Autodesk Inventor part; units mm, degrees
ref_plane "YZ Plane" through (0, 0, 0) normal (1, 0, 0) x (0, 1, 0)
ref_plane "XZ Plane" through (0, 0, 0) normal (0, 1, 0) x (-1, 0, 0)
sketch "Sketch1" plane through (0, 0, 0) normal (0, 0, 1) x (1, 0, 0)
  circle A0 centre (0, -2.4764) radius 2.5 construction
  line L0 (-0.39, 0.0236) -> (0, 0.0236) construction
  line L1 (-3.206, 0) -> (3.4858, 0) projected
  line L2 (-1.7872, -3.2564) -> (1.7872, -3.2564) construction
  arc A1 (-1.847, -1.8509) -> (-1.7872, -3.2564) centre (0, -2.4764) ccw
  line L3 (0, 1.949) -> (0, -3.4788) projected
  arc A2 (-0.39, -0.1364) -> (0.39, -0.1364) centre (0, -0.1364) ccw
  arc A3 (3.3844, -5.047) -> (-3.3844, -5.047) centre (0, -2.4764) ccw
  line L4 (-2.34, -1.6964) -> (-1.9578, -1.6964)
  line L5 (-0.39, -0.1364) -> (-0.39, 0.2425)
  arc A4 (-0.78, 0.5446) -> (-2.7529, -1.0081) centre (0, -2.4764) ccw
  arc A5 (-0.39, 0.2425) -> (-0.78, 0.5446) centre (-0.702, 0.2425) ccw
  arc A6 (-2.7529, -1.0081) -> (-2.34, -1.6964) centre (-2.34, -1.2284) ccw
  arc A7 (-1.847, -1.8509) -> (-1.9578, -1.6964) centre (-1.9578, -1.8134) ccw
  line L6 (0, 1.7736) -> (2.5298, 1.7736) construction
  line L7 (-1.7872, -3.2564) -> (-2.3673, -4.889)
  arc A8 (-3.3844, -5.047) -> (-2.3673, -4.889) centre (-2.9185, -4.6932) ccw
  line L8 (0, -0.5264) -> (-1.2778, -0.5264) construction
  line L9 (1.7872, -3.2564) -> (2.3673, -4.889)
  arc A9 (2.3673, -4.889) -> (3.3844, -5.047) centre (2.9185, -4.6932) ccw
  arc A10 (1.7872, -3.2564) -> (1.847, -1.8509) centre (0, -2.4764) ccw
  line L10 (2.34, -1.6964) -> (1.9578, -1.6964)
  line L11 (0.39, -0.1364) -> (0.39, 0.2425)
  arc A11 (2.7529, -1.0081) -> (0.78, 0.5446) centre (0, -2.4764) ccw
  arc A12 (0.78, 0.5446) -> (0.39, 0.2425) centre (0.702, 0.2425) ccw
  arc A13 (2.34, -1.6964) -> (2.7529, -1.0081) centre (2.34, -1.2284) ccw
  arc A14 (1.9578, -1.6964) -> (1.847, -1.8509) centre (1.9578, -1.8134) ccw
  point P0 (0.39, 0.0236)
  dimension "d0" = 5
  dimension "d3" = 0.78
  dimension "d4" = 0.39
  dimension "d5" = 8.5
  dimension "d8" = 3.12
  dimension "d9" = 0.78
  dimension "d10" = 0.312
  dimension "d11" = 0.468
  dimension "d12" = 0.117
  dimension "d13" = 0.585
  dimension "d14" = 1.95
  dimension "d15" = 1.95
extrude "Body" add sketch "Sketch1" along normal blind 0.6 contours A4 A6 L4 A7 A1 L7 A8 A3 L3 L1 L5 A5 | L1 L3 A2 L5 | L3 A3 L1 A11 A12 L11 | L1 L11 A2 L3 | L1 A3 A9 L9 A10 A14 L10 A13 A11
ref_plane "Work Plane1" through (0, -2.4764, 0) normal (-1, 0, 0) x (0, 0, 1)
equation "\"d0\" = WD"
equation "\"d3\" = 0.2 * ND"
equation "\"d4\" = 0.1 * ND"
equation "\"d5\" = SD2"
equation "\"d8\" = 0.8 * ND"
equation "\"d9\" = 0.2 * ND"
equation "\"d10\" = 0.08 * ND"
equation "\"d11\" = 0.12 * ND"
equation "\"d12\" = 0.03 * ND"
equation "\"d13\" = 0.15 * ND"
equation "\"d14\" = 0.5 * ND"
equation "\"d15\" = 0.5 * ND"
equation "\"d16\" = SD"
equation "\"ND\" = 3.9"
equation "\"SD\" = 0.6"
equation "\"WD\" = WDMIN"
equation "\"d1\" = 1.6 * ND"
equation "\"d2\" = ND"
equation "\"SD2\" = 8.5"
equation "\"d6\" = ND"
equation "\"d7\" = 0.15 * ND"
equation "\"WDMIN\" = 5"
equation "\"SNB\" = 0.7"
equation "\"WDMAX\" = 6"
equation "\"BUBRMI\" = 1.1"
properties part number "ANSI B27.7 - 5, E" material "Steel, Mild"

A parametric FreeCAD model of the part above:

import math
import FreeCAD as App
import Part
import Sketcher

V = App.Vector
Q = App.Units.Quantity

doc = App.newDocument("Part")
params = doc.addObject("Spreadsheet::Sheet", "Params")
for row, (alias, value) in enumerate([
    ("sketch1_radius", "3.12 mm"),
    ("sketch1_radius2", "0.39 mm"),
    ("sketch1_radius3", "1.95 mm"),
    ("sketch1_radius4", "4.25 mm"),
    ("pad1_length", "0.6 mm"),
], start=1):
    params.set(f"A{row}", alias)
    params.set(f"B{row}", "=" + value)
    params.setAlias(f"B{row}", alias)

body = doc.addObject("PartDesign::Body", "Body")

sketch1 = body.newObject("Sketcher::SketchObject", "Sketch")
sketch1.AttachmentSupport = (doc.getObject("XY_Plane"), [""])
sketch1.MapMode = "FlatFace"
sketch1.addGeometry([
    Part.ArcOfCircle(Part.Circle(V(0, -2.4764, 0), V(0, 0, 1), 3.119994), math.radians(104.477177), math.radians(151.926109)),
    Part.ArcOfCircle(Part.Circle(V(-0.702, 0.2425, 0), V(0, 0, 1), 0.312), math.radians(0), math.radians(104.477177)),
    Part.LineSegment(V(-0.39, 0.2425, 0), V(-0.39, -0.1364, 0)),
    Part.ArcOfCircle(Part.Circle(V(0, -0.1364, 0), V(0, 0, 1), 0.39), math.radians(180), math.radians(360)),
    Part.LineSegment(V(0.39, -0.1364, 0), V(0.39, 0.2425, 0)),
    Part.ArcOfCircle(Part.Circle(V(0.702, 0.2425, 0), V(0, 0, 1), 0.312007), math.radians(75.522823), math.radians(180)),
    Part.ArcOfCircle(Part.Circle(V(0, -2.4764, 0), V(0, 0, 1), 3.120071), math.radians(28.073891), math.radians(75.522823)),
    Part.ArcOfCircle(Part.Circle(V(2.34, -1.2284, 0), V(0, 0, 1), 0.468), math.radians(-90), math.radians(28.081849)),
    Part.LineSegment(V(2.34, -1.6964, 0), V(1.9578, -1.6964, 0)),
    Part.ArcOfCircle(Part.Circle(V(1.9578, -1.8134, 0), V(0, 0, 1), 0.117), math.radians(90), math.radians(198.698269)),
    Part.ArcOfCircle(Part.Circle(V(0, -2.4764, 0), V(0, 0, 1), 1.950041), math.radians(-23.578232), math.radians(18.709045)),
    Part.LineSegment(V(1.7872, -3.2564, 0), V(2.3673, -4.889, 0)),
    Part.ArcOfCircle(Part.Circle(V(2.9185, -4.6932, 0), V(0, 0, 1), 0.584944), math.radians(-160.443692), math.radians(-37.212689)),
    Part.ArcOfCircle(Part.Circle(V(0, -2.4764, 0), V(0, 0, 1), 4.249959), math.radians(-37.218262), math.radians(217.218262)),
    Part.ArcOfCircle(Part.Circle(V(-2.9185, -4.6932, 0), V(0, 0, 1), 0.58501), math.radians(-142.787311), math.radians(-19.556308)),
    Part.LineSegment(V(-2.3673, -4.889, 0), V(-1.7872, -3.2564, 0)),
    Part.ArcOfCircle(Part.Circle(V(0, -2.4764, 0), V(0, 0, 1), 1.949996), math.radians(161.290955), math.radians(203.578232)),
    Part.ArcOfCircle(Part.Circle(V(-1.9578, -1.8134, 0), V(0, 0, 1), 0.116974), math.radians(-18.698269), math.radians(90)),
    Part.LineSegment(V(-1.9578, -1.6964, 0), V(-2.34, -1.6964, 0)),
    Part.ArcOfCircle(Part.Circle(V(-2.34, -1.2284, 0), V(0, 0, 1), 0.467994), math.radians(151.918151), math.radians(270)),
], False)
sketch1.addConstraint([
    Sketcher.Constraint("Tangent", 0, 1, 1, 2),
    Sketcher.Constraint("Tangent", 1, 1, 2, 1),
    Sketcher.Constraint("Tangent", 2, 2, 3, 1),
    Sketcher.Constraint("Tangent", 3, 2, 4, 1),
    Sketcher.Constraint("Tangent", 4, 2, 5, 2),
    Sketcher.Constraint("Tangent", 5, 1, 6, 2),
    Sketcher.Constraint("Tangent", 6, 1, 7, 2),
    Sketcher.Constraint("Tangent", 7, 1, 8, 1),
    Sketcher.Constraint("Tangent", 8, 2, 9, 1),
    Sketcher.Constraint("Tangent", 9, 2, 10, 2),
    Sketcher.Constraint("Coincident", 10, 1, 11, 1),
    Sketcher.Constraint("Tangent", 11, 2, 12, 1),
    Sketcher.Constraint("Tangent", 12, 2, 13, 1),
    Sketcher.Constraint("Tangent", 13, 2, 14, 1),
    Sketcher.Constraint("Tangent", 14, 2, 15, 1),
    Sketcher.Constraint("Coincident", 15, 2, 16, 2),
    Sketcher.Constraint("Tangent", 16, 1, 17, 1),
    Sketcher.Constraint("Tangent", 17, 2, 18, 1),
    Sketcher.Constraint("Tangent", 18, 2, 19, 2),
    Sketcher.Constraint("Tangent", 19, 1, 0, 2),
    Sketcher.Constraint("Vertical", 2),
    Sketcher.Constraint("Vertical", 4),
    Sketcher.Constraint("Horizontal", 8),
    Sketcher.Constraint("Horizontal", 18),
    Sketcher.Constraint("Coincident", 6, 3, 0, 3),
    Sketcher.Constraint("Coincident", 10, 3, 0, 3),
    Sketcher.Constraint("Coincident", 13, 3, 0, 3),
    Sketcher.Constraint("Coincident", 16, 3, 0, 3),
    Sketcher.Constraint("Equal", 1, 5),
    Sketcher.Constraint("Equal", 0, 6),
    Sketcher.Constraint("Equal", 12, 14),
    Sketcher.Constraint("Equal", 10, 16),
    Sketcher.Constraint("Equal", 9, 17),
    Sketcher.Constraint("Equal", 7, 19),
    Sketcher.Constraint("Symmetric", 1, 3, 5, 3, -2),
    Sketcher.Constraint("Symmetric", 11, 2, 14, 2, -2),
    Sketcher.Constraint("Horizontal", 9, 3, 17, 3),
    Sketcher.Constraint("Radius", 0, Q("3.12 mm")),
    Sketcher.Constraint("Radius", 3, Q("0.39 mm")),
    Sketcher.Constraint("Radius", 10, Q("1.95 mm")),
    Sketcher.Constraint("Radius", 13, Q("4.25 mm")),
    Sketcher.Constraint("Radius", 1, Q("0.312 mm")),
    Sketcher.Constraint("Radius", 7, Q("0.468 mm")),
    Sketcher.Constraint("Radius", 9, Q("0.117 mm")),
    Sketcher.Constraint("Radius", 12, Q("0.585 mm")),
    Sketcher.Constraint("DistanceX", 19, 3, 1, 1, Q("1.95 mm")),
    Sketcher.Constraint("DistanceY", 15, 2, 0, 3, Q("0.78 mm")),
    Sketcher.Constraint("DistanceY", 2, 2, 2, 1, Q("0.379 mm")),
    Sketcher.Constraint("DistanceX", 10, 1, 11, 2, Q("0.58 mm")),
    Sketcher.Constraint("DistanceY", 6, 1, -1, 1, Q("1.008 mm")),
])
sketch1.setExpression("Constraints[37]", "Params.sketch1_radius")
sketch1.setExpression("Constraints[38]", "Params.sketch1_radius2")
sketch1.setExpression("Constraints[39]", "Params.sketch1_radius3")
sketch1.setExpression("Constraints[40]", "Params.sketch1_radius4")
pad1 = body.newObject("PartDesign::Pad", "Pad")
pad1.Profile = sketch1
pad1.setExpression("Length", "Params.pad1_length")

doc.recompute()
